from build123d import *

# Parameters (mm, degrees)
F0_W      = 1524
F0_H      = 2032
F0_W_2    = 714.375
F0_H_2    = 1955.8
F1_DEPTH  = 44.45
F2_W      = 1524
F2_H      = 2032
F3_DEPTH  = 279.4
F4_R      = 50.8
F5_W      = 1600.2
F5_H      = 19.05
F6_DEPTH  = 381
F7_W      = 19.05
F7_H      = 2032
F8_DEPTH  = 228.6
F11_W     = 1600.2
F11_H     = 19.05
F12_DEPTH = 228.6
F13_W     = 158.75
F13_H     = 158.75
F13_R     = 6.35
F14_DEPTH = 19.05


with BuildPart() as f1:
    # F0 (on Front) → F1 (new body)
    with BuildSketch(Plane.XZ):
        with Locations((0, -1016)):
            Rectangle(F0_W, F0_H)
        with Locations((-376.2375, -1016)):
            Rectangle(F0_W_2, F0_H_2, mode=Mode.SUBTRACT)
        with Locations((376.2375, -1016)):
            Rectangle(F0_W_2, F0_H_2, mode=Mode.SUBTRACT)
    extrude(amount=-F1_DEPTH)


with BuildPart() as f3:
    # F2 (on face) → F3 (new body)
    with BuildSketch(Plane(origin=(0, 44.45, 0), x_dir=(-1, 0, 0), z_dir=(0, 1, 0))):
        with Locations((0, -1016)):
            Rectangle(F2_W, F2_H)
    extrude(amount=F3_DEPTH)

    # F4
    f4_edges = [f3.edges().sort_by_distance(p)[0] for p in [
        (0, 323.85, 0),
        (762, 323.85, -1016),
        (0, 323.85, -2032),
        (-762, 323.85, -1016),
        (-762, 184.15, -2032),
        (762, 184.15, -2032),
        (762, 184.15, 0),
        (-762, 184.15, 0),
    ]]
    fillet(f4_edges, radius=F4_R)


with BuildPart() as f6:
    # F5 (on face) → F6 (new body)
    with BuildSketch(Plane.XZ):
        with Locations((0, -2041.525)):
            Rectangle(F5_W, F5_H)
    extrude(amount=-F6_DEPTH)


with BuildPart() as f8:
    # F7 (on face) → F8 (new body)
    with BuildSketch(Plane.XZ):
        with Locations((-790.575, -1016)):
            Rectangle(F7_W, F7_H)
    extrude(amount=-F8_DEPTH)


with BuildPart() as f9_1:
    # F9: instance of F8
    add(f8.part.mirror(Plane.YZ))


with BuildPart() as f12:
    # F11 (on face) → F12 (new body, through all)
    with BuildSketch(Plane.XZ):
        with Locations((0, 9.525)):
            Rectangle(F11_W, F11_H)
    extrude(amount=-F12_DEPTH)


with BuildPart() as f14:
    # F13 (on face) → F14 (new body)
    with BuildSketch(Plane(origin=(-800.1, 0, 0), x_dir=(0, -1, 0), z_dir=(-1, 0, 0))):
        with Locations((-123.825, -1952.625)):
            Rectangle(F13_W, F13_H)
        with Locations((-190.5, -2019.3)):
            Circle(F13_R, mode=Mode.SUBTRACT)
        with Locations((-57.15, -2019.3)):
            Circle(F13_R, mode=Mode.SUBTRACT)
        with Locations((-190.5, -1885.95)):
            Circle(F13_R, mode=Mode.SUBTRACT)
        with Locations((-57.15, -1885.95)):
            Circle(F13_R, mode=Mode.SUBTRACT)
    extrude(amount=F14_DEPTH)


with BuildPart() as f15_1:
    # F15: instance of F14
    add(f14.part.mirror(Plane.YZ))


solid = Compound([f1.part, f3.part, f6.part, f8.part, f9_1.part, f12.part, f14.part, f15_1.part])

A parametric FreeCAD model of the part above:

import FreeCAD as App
import Part
import Sketcher

V = App.Vector
Q = App.Units.Quantity


def edges_at(feature, points):
    """Names of the edges that pass closest to the given points."""
    edges = feature.Shape.Edges
    near = lambda p: min(range(len(edges)), key=lambda i: edges[i].distToShape(Part.Vertex(*p))[0])
    return sorted({f"Edge{near(p) + 1}" for p in points})


def add_polygon(sketch, points):
    """Adds a closed chain of lines whose ends are joined by coincident constraints."""
    first, n = sketch.GeometryCount, len(points)
    for a, b in zip(points, points[1:] + points[:1]):
        sketch.addGeometry(Part.LineSegment(App.Vector(*a, 0), App.Vector(*b, 0)), False)
    for i in range(n):
        sketch.addConstraint(Sketcher.Constraint("Coincident", first + i, 2, first + (i + 1) % n, 1))

doc = App.newDocument("Part")
body = doc.addObject("PartDesign::Body", "Body")

sketch1 = doc.addObject("Sketcher::SketchObject", "Sketch")
body.addObject(sketch1)
sketch1.AttachmentSupport = (doc.XZ_Plane, [""])
sketch1.MapMode = "FlatFace"
add_polygon(sketch1, [(-762, 0), (-762, -2032), (762, -2032), (762, 0)])
add_polygon(sketch1, [(-19, -1994), (-733, -1994), (-733, -38), (-19, -38)])
add_polygon(sketch1, [(733, -1994), (19, -1994), (19, -38), (733, -38)])
sketch1.addConstraint(Sketcher.Constraint("Vertical", 0))
sketch1.addConstraint(Sketcher.Constraint("Horizontal", 1))
sketch1.addConstraint(Sketcher.Constraint("Vertical", 2))
sketch1.addConstraint(Sketcher.Constraint("Horizontal", 3))
sketch1.addConstraint(Sketcher.Constraint("Horizontal", 4))
sketch1.addConstraint(Sketcher.Constraint("Vertical", 5))
sketch1.addConstraint(Sketcher.Constraint("Horizontal", 6))
sketch1.addConstraint(Sketcher.Constraint("Vertical", 7))
sketch1.addConstraint(Sketcher.Constraint("Horizontal", 8))
sketch1.addConstraint(Sketcher.Constraint("Vertical", 9))
sketch1.addConstraint(Sketcher.Constraint("Horizontal", 10))
sketch1.addConstraint(Sketcher.Constraint("Vertical", 11))
sketch1.addConstraint(Sketcher.Constraint("Symmetric", 2, 2, 3, 2, -1, 1))
sketch1.addConstraint(Sketcher.Constraint("Symmetric", 7, 2, 8, 2, -2))
sketch1.addConstraint(Sketcher.Constraint("Symmetric", 5, 2, 10, 2, -2))
sketch1.addConstraint(Sketcher.Constraint("DistanceX", 1, 1, 1, 2, Q("60 in")))
sketch1.addConstraint(Sketcher.Constraint("DistanceY", 0, 2, 0, 1, Q("80 in")))
sketch1.addConstraint(Sketcher.Constraint("DistanceY", 5, 1, 5, 2, Q("77 in")))
sketch1.addConstraint(Sketcher.Constraint("DistanceY", 4, 2, -1, 1, Q("78.5 in")))
sketch1.addConstraint(Sketcher.Constraint("DistanceX", 7, 2, 8, 2, Q("1.5 in")))
sketch1.addConstraint(Sketcher.Constraint("DistanceX", 4, 2, 4, 1, Q("28.125 in")))
pad1 = doc.addObject("PartDesign::Pad", "Pad")
body.addObject(pad1)
pad1.Profile = sketch1
pad1.Length = Q("1.75 in")
pad1.Reversed = True
body2 = doc.addObject("PartDesign::Body", "Body001")

sketch2 = doc.addObject("Sketcher::SketchObject", "Sketch001")
body2.addObject(sketch2)
sketch2.AttachmentSupport = (doc.getObject("XZ_Plane001"), [""])
sketch2.MapMode = "FlatFace"
sketch2.AttachmentOffset = App.Placement(V(0, 0, -1.75 * 25.4), App.Rotation())
add_polygon(sketch2, [(762, 0), (762, -2032), (-762, -2032), (-762, 0)])
sketch2.addConstraint(Sketcher.Constraint("Vertical", 0))
sketch2.addConstraint(Sketcher.Constraint("Horizontal", 1))
sketch2.addConstraint(Sketcher.Constraint("Vertical", 2))
sketch2.addConstraint(Sketcher.Constraint("Horizontal", 3))
sketch2.addConstraint(Sketcher.Constraint("Symmetric", 2, 2, 3, 2, -1, 1))
sketch2.addConstraint(Sketcher.Constraint("DistanceX", 1, 2, 1, 1, Q("60 in")))
sketch2.addConstraint(Sketcher.Constraint("DistanceY", 0, 2, 0, 1, Q("80 in")))
pad2 = doc.addObject("PartDesign::Pad", "Pad001")
body2.addObject(pad2)
pad2.Profile = sketch2
pad2.Length = Q("11 in")
pad2.Reversed = True
doc.recompute()

fillet = doc.addObject("PartDesign::Fillet", "Fillet")
body2.addObject(fillet)
fillet.Base = (pad2, edges_at(pad2, [
    (0, 323.85, 0),
    (762, 323.85, -1016),
    (0, 323.85, -2032),
    (-762, 323.85, -1016),
    (-762, 184.15, -2032),
    (762, 184.15, -2032),
    (762, 184.15, 0),
    (-762, 184.15, 0),
]))
fillet.Radius = Q("2 in")
body3 = doc.addObject("PartDesign::Body", "Body002")

sketch3 = doc.addObject("Sketcher::SketchObject", "Sketch002")
body3.addObject(sketch3)
sketch3.AttachmentSupport = (doc.getObject("XZ_Plane002"), [""])
sketch3.MapMode = "FlatFace"
add_polygon(sketch3, [(-800, -2032), (-800, -2051), (800, -2051), (800, -2032)])
sketch3.addConstraint(Sketcher.Constraint("Vertical", 0))
sketch3.addConstraint(Sketcher.Constraint("Horizontal", 1))
sketch3.addConstraint(Sketcher.Constraint("Vertical", 2))
sketch3.addConstraint(Sketcher.Constraint("Horizontal", 3))
sketch3.addConstraint(Sketcher.Constraint("DistanceX", 1, 1, 1, 2, Q("63 in")))
sketch3.addConstraint(Sketcher.Constraint("DistanceY", 2, 2, -1, 1, Q("80 in")))
sketch3.addConstraint(Sketcher.Constraint("DistanceY", 0, 2, 0, 1, Q("0.75 in")))
sketch3.addConstraint(Sketcher.Constraint("DistanceX", 0, 2, -1, 1, Q("31.5 in")))
pad3 = doc.addObject("PartDesign::Pad", "Pad002")
body3.addObject(pad3)
pad3.Profile = sketch3
pad3.Length = Q("15 in")
pad3.Reversed = True
body4 = doc.addObject("PartDesign::Body", "Body003")

sketch4 = doc.addObject("Sketcher::SketchObject", "Sketch003")
body4.addObject(sketch4)
sketch4.AttachmentSupport = (doc.getObject("XZ_Plane003"), [""])
sketch4.MapMode = "FlatFace"
add_polygon(sketch4, [(-800, 0), (-800, -2032), (-781, -2032), (-781, 0)])
sketch4.addConstraint(Sketcher.Constraint("Vertical", 0))
sketch4.addConstraint(Sketcher.Constraint("Horizontal", 1))
sketch4.addConstraint(Sketcher.Constraint("Vertical", 2))
sketch4.addConstraint(Sketcher.Constraint("Horizontal", 3))
sketch4.addConstraint(Sketcher.Constraint("PointOnObject", 2, 2, -1))
sketch4.addConstraint(Sketcher.Constraint("DistanceY", 0, 2, 0, 1, Q("80 in")))
sketch4.addConstraint(Sketcher.Constraint("DistanceX", 1, 1, 1, 2, Q("0.75 in")))
sketch4.addConstraint(Sketcher.Constraint("DistanceX", 0, 2, -1, 1, Q("31.5 in")))
pad4 = doc.addObject("PartDesign::Pad", "Pad003")
body4.addObject(pad4)
pad4.Profile = sketch4
pad4.Length = Q("9 in")
pad4.Reversed = True
body5 = doc.addObject("PartDesign::Body", "Body004")
doc.recompute()

mirroring = doc.addObject("Part::Mirroring", "Mirroring")
mirroring.Source = body4
mirroring.Base = V(0, 0, 0)
mirroring.Normal = V(1, 0, 0)
body5.BaseFeature = mirroring
doc.recompute()
body6 = doc.addObject("PartDesign::Body", "Body005")

sketch5 = doc.addObject("Sketcher::SketchObject", "Sketch004")
body6.addObject(sketch5)
sketch5.AttachmentSupport = (doc.getObject("XZ_Plane005"), [""])
sketch5.MapMode = "FlatFace"
add_polygon(sketch5, [(-800, 19), (-800, 0), (800, 0), (800, 19)])
sketch5.addConstraint(Sketcher.Constraint("Vertical", 0))
sketch5.addConstraint(Sketcher.Constraint("Horizontal", 1))
sketch5.addConstraint(Sketcher.Constraint("Vertical", 2))
sketch5.addConstraint(Sketcher.Constraint("Horizontal", 3))
sketch5.addConstraint(Sketcher.Constraint("Symmetric", 0, 2, 1, 2, -1, 1))
sketch5.addConstraint(Sketcher.Constraint("DistanceX", 1, 1, 1, 2, Q("63 in")))
sketch5.addConstraint(Sketcher.Constraint("DistanceY", 0, 2, 0, 1, Q("0.75 in")))
pad5 = doc.addObject("PartDesign::Pad", "Pad004")
body6.addObject(pad5)
pad5.Profile = sketch5
pad5.Length = Q("9 in")
pad5.Reversed = True
body7 = doc.addObject("PartDesign::Body", "Body006")

sketch6 = doc.addObject("Sketcher::SketchObject", "Sketch005")
body7.addObject(sketch6)
sketch6.AttachmentSupport = (doc.getObject("YZ_Plane006"), [""])
sketch6.MapMode = "FlatFace"
sketch6.AttachmentOffset = App.Placement(V(0, 0, -31.5 * 25.4), App.Rotation())
add_polygon(sketch6, [(203, -1873), (203, -2032), (44, -2032), (44, -1873)])
sketch6.addGeometry(Part.Circle(V(190, -2019, 0), V(0, 0, 1), 6), False)
sketch6.addGeometry(Part.Circle(V(57, -2019, 0), V(0, 0, 1), 6), False)
sketch6.addGeometry(Part.Circle(V(190, -1886, 0), V(0, 0, 1), 6), False)
sketch6.addGeometry(Part.Circle(V(57, -1886, 0), V(0, 0, 1), 6), False)
sketch6.addConstraint(Sketcher.Constraint("Vertical", 0))
sketch6.addConstraint(Sketcher.Constraint("Horizontal", 1))
sketch6.addConstraint(Sketcher.Constraint("Vertical", 2))
sketch6.addConstraint(Sketcher.Constraint("Horizontal", 3))
sketch6.addConstraint(Sketcher.Constraint("Equal", 4, 5))
sketch6.addConstraint(Sketcher.Constraint("Equal", 5, 6))
sketch6.addConstraint(Sketcher.Constraint("Equal", 6, 7))
sketch6.addConstraint(Sketcher.Constraint("Horizontal", 4, 3, 5, 3))
sketch6.addConstraint(Sketcher.Constraint("Horizontal", 6, 3, 7, 3))
sketch6.addConstraint(Sketcher.Constraint("Vertical", 4, 3, 6, 3))
sketch6.addConstraint(Sketcher.Constraint("Vertical", 5, 3, 7, 3))
sketch6.addConstraint(Sketcher.Constraint("Equal", 3, 0))
sketch6.addConstraint(Sketcher.Constraint("Diameter", 4, Q("0.5 in")))
sketch6.addConstraint(Sketcher.Constraint("DistanceX", -1, 1, 0, 2, Q("8 in")))
sketch6.addConstraint(Sketcher.Constraint("DistanceY", 0, 2, -1, 1, Q("80 in")))
sketch6.addConstraint(Sketcher.Constraint("DistanceX", 1, 2, 1, 1, Q("6.25 in")))
sketch6.addConstraint(Sketcher.Constraint("DistanceX", -1, 1, 4, 3, Q("7.5 in")))
sketch6.addConstraint(Sketcher.Constraint("DistanceY", 4, 3, -1, 1, Q("79.5 in")))
sketch6.addConstraint(Sketcher.Constraint("DistanceX", 1, 2, 5, 3, Q("0.5 in")))
sketch6.addConstraint(Sketcher.Constraint("DistanceY", 7, 3, 2, 2, Q("0.5 in")))
pad6 = doc.addObject("PartDesign::Pad", "Pad005")
body7.addObject(pad6)
pad6.Profile = sketch6
pad6.Length = Q("0.75 in")
pad6.Reversed = True
body8 = doc.addObject("PartDesign::Body", "Body007")
doc.recompute()

mirroring2 = doc.addObject("Part::Mirroring", "Mirroring001")
mirroring2.Source = body7
mirroring2.Base = V(0, 0, 0)
mirroring2.Normal = V(1, 0, 0)
body8.BaseFeature = mirroring2
doc.recompute()
mirroring.Visibility = False
mirroring2.Visibility = False

doc.recompute()
